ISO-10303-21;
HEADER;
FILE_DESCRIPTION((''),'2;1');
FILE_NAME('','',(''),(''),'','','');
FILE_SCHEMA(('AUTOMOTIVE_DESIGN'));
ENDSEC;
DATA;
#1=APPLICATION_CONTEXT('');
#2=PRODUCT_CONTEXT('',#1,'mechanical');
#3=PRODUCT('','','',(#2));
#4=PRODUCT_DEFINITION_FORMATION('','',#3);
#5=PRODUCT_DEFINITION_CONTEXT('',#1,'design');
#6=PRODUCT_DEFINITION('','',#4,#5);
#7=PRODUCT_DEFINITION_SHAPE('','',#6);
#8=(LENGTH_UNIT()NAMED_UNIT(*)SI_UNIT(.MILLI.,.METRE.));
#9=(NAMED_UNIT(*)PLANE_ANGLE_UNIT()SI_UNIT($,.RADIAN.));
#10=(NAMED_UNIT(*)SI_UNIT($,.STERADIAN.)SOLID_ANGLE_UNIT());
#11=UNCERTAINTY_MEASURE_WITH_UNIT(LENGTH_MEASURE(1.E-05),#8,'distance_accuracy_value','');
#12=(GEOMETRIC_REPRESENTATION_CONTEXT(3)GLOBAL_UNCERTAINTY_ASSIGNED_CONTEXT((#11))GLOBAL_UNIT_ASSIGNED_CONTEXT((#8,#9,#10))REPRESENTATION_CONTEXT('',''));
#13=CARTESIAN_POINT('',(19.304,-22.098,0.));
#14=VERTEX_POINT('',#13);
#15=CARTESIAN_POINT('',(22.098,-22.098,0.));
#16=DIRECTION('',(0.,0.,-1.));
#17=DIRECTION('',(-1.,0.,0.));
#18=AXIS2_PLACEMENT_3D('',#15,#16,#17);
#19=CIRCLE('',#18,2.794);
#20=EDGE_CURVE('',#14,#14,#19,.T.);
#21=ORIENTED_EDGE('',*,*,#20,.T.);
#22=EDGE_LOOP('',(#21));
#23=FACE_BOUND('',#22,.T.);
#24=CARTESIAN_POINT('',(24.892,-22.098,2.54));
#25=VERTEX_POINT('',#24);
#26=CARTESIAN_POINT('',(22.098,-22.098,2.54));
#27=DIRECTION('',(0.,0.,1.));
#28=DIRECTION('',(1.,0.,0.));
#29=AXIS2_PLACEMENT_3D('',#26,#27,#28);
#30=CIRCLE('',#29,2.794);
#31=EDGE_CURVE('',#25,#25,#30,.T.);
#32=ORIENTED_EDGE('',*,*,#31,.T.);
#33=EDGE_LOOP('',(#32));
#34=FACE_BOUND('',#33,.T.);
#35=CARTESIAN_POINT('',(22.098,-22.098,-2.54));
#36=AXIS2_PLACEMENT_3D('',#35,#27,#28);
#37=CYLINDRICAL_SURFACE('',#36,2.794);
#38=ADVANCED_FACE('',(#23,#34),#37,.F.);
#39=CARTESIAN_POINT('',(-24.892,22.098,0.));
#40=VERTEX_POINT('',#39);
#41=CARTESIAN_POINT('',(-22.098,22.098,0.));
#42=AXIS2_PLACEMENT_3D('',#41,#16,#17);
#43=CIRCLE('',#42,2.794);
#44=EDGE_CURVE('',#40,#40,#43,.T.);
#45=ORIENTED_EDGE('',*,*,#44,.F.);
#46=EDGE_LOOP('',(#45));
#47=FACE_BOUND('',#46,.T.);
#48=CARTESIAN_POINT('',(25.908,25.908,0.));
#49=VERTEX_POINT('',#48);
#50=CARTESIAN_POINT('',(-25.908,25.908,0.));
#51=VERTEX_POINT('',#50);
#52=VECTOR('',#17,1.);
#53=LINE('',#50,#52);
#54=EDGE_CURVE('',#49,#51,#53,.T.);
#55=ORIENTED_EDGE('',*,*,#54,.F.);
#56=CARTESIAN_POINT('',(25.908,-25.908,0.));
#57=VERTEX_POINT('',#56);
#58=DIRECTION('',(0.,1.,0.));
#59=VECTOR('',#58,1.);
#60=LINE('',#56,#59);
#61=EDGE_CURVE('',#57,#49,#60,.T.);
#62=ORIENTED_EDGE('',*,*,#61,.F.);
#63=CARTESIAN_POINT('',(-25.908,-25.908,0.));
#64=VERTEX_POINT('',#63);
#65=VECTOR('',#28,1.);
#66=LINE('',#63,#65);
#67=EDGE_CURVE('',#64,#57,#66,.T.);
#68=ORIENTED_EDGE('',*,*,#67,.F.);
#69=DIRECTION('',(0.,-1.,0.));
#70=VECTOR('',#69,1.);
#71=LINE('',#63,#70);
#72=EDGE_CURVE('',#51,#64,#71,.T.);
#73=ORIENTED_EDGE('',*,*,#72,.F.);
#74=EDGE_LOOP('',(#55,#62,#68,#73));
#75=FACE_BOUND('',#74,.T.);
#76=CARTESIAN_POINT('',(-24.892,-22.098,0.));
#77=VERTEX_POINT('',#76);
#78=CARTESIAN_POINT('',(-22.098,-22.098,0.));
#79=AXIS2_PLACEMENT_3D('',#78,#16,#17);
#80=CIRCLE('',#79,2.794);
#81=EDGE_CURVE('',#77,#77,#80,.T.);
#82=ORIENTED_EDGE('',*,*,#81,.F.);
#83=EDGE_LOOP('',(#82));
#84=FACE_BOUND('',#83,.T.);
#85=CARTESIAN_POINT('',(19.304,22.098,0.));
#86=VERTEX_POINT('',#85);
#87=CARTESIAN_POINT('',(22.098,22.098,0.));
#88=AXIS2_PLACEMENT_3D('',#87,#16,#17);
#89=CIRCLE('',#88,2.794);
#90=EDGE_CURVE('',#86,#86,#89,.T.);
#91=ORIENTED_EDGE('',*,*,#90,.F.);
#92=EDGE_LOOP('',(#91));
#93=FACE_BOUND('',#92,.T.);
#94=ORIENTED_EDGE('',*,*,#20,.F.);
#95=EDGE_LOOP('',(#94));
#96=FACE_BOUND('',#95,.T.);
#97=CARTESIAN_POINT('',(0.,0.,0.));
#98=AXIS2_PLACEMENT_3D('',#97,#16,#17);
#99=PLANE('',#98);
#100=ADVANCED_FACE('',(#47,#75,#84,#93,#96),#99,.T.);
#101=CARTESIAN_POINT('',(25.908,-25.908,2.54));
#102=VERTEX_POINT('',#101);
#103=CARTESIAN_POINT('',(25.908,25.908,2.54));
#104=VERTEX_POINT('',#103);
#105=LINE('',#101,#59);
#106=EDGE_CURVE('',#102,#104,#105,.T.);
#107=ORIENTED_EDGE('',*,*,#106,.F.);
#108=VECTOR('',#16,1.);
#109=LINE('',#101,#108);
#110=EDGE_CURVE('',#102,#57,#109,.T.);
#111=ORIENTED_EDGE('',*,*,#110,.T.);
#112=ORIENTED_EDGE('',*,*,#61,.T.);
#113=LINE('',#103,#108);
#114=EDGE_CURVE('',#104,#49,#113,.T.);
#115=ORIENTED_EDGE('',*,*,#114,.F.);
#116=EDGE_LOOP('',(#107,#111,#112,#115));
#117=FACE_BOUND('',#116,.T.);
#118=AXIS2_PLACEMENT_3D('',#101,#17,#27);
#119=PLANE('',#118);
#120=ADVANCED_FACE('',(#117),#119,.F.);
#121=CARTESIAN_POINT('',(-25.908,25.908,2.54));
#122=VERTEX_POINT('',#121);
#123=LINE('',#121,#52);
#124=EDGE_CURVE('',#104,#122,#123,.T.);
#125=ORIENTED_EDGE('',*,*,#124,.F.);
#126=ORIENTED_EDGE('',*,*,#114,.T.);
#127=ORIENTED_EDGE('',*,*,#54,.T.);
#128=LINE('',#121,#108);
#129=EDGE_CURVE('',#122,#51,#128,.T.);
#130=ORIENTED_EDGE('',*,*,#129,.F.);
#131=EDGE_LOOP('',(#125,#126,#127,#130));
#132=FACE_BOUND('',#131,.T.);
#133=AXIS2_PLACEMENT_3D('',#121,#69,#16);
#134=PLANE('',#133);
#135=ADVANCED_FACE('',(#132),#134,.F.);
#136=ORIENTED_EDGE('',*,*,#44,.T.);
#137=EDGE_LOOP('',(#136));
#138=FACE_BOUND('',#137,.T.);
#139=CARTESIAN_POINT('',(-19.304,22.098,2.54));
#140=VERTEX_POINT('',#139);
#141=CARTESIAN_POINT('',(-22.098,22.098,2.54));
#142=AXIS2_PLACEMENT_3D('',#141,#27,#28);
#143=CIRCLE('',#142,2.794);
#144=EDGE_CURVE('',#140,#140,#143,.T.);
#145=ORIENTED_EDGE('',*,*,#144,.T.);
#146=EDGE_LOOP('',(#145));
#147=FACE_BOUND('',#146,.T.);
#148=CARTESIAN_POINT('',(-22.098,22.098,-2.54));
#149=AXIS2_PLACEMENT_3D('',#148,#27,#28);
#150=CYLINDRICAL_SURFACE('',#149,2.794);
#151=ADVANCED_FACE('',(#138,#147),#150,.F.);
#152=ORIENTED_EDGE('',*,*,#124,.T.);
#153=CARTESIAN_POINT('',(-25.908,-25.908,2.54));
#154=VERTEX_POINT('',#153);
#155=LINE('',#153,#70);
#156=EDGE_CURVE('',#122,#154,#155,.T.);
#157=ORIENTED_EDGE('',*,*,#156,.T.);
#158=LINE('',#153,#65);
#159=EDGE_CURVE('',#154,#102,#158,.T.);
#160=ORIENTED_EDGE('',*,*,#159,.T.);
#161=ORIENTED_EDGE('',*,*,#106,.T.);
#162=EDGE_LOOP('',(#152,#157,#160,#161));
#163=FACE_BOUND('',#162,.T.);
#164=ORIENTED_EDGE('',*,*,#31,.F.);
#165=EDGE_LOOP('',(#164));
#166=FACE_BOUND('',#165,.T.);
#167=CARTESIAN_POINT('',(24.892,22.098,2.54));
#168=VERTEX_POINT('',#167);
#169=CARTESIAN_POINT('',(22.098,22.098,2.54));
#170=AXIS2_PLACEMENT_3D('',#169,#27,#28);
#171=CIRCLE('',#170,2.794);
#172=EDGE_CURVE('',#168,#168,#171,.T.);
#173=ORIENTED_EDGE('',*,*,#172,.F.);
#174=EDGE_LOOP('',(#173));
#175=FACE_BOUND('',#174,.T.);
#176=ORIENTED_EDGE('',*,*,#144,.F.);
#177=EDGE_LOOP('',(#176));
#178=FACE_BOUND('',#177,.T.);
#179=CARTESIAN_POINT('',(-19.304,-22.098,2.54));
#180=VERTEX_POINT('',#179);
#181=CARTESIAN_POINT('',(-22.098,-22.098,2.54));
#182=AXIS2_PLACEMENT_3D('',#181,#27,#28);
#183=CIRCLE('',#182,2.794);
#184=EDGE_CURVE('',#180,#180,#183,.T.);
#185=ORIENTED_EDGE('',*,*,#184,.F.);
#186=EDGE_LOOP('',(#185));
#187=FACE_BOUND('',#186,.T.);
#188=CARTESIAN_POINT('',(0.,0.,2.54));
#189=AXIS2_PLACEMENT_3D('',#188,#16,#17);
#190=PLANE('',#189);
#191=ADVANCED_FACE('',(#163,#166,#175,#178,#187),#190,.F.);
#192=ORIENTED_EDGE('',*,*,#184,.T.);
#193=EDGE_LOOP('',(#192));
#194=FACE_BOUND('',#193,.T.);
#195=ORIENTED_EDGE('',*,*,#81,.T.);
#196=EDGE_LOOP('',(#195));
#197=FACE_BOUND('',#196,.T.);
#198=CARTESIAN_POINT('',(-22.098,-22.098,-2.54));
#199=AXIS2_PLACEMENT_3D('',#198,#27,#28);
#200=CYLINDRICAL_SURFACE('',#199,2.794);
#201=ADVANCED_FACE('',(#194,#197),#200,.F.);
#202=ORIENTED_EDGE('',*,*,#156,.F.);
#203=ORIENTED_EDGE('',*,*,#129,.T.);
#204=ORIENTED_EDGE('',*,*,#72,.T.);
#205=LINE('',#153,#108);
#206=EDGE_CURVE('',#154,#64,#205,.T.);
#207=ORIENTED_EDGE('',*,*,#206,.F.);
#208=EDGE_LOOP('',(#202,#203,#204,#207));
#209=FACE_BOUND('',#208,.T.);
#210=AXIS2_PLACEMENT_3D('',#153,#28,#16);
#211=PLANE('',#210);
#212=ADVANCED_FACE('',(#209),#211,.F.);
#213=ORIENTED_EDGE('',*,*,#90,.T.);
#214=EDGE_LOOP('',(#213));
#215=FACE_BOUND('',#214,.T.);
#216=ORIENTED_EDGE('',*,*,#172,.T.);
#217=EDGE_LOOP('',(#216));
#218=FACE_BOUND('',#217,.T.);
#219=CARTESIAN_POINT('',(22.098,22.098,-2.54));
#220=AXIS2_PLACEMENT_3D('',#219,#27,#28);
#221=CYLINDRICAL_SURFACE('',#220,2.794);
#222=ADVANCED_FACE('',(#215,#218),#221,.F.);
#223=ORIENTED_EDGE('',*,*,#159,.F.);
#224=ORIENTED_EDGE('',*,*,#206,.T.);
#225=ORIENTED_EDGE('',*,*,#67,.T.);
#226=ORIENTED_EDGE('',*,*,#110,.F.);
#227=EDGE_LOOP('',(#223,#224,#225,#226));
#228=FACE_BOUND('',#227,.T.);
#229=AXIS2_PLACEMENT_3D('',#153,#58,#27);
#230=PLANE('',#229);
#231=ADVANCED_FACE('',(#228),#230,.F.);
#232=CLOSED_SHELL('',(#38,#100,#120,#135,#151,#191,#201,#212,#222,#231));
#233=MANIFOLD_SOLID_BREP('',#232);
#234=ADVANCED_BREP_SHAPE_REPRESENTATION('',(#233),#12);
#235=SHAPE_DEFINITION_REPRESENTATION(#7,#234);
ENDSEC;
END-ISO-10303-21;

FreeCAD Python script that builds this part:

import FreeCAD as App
import Part
import Sketcher
Q = App.Units.Quantity


def add_polygon(sketch, points):
    """Adds a closed chain of lines whose ends are joined by coincident constraints."""
    first, n = sketch.GeometryCount, len(points)
    for a, b in zip(points, points[1:] + points[:1]):
        sketch.addGeometry(Part.LineSegment(App.Vector(*a, 0), App.Vector(*b, 0)), False)
    for i in range(n):
        sketch.addConstraint(Sketcher.Constraint("Coincident", first + i, 2, first + (i + 1) % n, 1))

doc = App.newDocument("Part")
body = doc.addObject("PartDesign::Body", "Body")

# Sketch on XY plane
sketch1 = doc.addObject("Sketcher::SketchObject", "Sketch")
body.addObject(sketch1)
sketch1.AttachmentSupport = (doc.XY_Plane, [""])
sketch1.MapMode = "FlatFace"
add_polygon(sketch1, [(-26, 26), (-26, -26), (26, -26), (26, 26)])  # lines 0-3
sketch1.addConstraint([
    Sketcher.Constraint("Vertical", 0),
    Sketcher.Constraint("Horizontal", 1),
    Sketcher.Constraint("Vertical", 2),
    Sketcher.Constraint("Horizontal", 3),
    Sketcher.Constraint("Symmetric", 0, 2, 2, 2, -1, 1),
    Sketcher.Constraint("Equal", 3, 0),
    Sketcher.Constraint("DistanceX", 1, 1, 1, 2, Q("2.04 in")),
])
pad1 = doc.addObject("PartDesign::Pad", "Pad")
body.addObject(pad1)
pad1.Profile = sketch1
pad1.Length = Q("0.1 in")

# Sketch on XY plane
sketch2 = doc.addObject("Sketcher::SketchObject", "Sketch001")
body.addObject(sketch2)
sketch2.AttachmentSupport = (doc.XY_Plane, [""])
sketch2.MapMode = "FlatFace"
sketch2.AttachmentOffset = App.Placement(App.Vector(0, 0, 0.1 * 25.4), App.Rotation())
sketch2.addGeometry([
    Part.Circle(App.Vector(22.1, 22.1, 0), App.Vector(0, 0, 1), 2.8),
    Part.Circle(App.Vector(22.1, -22.1, 0), App.Vector(0, 0, 1), 2.8),
    Part.Circle(App.Vector(-22.1, 22.1, 0), App.Vector(0, 0, 1), 2.8),
    Part.Circle(App.Vector(-22.1, -22.1, 0), App.Vector(0, 0, 1), 2.8),
], False)
sketch2.addConstraint([
    Sketcher.Constraint("Equal", 0, 1),
    Sketcher.Constraint("Equal", 1, 2),
    Sketcher.Constraint("Equal", 2, 3),
    Sketcher.Constraint("Symmetric", 1, 3, 2, 3, -1, 1),
    Sketcher.Constraint("Symmetric", 0, 3, 3, 3, -1, 1),
    Sketcher.Constraint("Symmetric", 0, 3, 2, 3, -2),
    Sketcher.Constraint("Diameter", 0, Q("0.22 in")),
    Sketcher.Constraint("DistanceX", -1, 1, 0, 3, Q("0.87 in")),
    Sketcher.Constraint("DistanceY", -1, 1, 0, 3, Q("0.87 in")),
])
pocket1 = doc.addObject("PartDesign::Pocket", "Pocket")
body.addObject(pocket1)
pocket1.Profile = sketch2
pocket1.Length = Q("0.2 in")

doc.recompute()
